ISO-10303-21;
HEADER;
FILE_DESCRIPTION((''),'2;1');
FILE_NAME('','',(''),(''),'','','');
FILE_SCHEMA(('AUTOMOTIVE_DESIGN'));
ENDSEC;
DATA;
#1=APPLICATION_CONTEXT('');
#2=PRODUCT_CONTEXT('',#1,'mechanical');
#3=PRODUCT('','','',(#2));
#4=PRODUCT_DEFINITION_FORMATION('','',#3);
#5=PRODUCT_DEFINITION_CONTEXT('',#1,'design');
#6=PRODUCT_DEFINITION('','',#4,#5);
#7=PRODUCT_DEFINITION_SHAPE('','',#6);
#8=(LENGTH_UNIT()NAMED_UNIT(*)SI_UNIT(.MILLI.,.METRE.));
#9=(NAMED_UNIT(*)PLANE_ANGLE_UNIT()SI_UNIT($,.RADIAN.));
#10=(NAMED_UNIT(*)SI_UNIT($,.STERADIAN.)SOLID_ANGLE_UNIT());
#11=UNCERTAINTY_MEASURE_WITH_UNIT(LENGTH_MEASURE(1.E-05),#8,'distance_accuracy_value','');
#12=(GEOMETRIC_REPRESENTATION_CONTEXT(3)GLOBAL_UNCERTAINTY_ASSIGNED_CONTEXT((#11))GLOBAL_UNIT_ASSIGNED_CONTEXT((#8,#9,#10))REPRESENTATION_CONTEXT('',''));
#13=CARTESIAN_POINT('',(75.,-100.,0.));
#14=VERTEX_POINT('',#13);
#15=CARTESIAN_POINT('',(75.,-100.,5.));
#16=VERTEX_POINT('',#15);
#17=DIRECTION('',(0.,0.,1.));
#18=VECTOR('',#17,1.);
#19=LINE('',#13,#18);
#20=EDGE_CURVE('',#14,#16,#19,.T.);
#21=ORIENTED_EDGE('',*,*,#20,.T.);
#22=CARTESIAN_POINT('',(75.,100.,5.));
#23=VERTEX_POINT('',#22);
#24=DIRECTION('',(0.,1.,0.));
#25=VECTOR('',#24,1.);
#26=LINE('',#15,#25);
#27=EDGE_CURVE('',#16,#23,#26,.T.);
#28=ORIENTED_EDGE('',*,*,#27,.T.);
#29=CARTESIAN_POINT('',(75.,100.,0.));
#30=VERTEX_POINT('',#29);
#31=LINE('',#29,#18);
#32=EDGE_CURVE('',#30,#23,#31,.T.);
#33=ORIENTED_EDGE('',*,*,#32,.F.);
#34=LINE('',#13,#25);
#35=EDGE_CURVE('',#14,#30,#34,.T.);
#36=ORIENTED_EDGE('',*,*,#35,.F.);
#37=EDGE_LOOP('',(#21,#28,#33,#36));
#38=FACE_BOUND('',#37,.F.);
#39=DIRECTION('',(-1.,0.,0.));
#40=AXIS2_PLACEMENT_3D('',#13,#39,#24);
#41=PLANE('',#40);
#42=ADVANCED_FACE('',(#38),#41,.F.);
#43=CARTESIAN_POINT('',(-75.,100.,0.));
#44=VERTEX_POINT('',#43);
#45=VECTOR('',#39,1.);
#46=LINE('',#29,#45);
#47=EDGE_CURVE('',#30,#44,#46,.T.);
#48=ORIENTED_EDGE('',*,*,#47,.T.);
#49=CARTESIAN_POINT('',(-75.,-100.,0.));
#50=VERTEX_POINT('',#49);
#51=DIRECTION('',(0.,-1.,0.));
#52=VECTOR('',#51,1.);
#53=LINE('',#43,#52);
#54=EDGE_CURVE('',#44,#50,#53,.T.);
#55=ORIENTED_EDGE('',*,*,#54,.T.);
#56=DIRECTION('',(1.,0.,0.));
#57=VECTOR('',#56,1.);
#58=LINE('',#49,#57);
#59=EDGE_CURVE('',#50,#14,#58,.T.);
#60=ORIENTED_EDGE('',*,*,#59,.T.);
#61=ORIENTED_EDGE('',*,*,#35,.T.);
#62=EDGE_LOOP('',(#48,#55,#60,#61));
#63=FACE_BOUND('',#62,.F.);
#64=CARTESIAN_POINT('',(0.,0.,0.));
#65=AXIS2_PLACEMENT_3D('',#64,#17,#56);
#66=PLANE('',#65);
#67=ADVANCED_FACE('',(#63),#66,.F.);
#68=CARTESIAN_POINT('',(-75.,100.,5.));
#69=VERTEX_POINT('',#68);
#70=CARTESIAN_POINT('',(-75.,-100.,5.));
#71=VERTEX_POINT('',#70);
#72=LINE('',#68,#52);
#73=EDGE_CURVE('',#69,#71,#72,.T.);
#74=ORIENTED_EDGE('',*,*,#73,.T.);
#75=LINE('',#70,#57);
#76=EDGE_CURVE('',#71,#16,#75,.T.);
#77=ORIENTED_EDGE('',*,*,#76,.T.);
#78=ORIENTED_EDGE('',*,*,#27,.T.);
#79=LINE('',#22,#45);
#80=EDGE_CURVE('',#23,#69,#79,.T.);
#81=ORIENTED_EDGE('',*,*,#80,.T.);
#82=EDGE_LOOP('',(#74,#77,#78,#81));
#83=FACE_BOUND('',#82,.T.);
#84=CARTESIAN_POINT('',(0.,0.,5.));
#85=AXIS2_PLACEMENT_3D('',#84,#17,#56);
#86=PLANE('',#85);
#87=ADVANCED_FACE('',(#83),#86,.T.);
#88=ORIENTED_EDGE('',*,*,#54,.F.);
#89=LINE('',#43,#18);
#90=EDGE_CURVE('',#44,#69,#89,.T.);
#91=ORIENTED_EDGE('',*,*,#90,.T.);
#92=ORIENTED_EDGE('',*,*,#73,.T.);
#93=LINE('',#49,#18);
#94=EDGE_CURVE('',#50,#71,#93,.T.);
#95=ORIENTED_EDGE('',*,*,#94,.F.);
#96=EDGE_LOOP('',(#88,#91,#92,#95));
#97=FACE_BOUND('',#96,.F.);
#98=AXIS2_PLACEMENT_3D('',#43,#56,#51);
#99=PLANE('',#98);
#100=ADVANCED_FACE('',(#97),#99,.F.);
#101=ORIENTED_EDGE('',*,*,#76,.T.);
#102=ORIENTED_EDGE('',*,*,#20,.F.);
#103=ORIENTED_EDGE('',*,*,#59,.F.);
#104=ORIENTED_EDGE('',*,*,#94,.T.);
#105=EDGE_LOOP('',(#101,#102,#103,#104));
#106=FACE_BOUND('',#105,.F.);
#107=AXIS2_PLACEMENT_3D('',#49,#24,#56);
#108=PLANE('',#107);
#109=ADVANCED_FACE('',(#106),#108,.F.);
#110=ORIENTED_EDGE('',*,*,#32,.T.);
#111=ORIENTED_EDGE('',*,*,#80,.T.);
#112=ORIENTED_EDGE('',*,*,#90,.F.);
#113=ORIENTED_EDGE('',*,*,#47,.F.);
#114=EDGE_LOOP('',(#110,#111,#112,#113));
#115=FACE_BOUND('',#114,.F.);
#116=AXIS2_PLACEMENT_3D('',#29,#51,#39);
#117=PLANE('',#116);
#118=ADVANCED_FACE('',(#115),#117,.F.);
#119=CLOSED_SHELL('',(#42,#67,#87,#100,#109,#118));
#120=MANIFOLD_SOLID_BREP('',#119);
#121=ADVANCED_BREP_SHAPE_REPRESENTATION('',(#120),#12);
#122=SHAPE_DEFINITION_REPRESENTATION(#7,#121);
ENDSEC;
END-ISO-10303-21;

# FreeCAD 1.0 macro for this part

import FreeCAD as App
import Part
import Sketcher

V = App.Vector


def add_polygon(sketch, points):
    """Adds a closed chain of lines whose ends are joined by coincident constraints."""
    first, n = sketch.GeometryCount, len(points)
    for a, b in zip(points, points[1:] + points[:1]):
        sketch.addGeometry(Part.LineSegment(App.Vector(*a, 0), App.Vector(*b, 0)), False)
    for i in range(n):
        sketch.addConstraint(Sketcher.Constraint("Coincident", first + i, 2, first + (i + 1) % n, 1))

doc = App.newDocument("Part")
body = doc.addObject("PartDesign::Body", "Body")

sketch1 = body.newObject("Sketcher::SketchObject", "Sketch")
sketch1.AttachmentSupport = (doc.getObject("XY_Plane"), [""])
sketch1.MapMode = "FlatFace"
add_polygon(sketch1, [(-75, 100), (-75, -100), (75, -100), (75, 100)])
sketch1.addConstraint([
    Sketcher.Constraint("Vertical", 0),
    Sketcher.Constraint("Horizontal", 1),
    Sketcher.Constraint("Vertical", 2),
    Sketcher.Constraint("Horizontal", 3),
    Sketcher.Constraint("Symmetric", 0, 2, 2, 2, -1, 1),
    Sketcher.Constraint("DistanceX", 1, 1, 1, 2, 150.0),
    Sketcher.Constraint("DistanceY", 0, 2, 0, 1, 200.0),
])
pad1 = body.newObject("PartDesign::Pad", "Pad")
pad1.Profile = sketch1
pad1.Length = 5

doc.recompute()
